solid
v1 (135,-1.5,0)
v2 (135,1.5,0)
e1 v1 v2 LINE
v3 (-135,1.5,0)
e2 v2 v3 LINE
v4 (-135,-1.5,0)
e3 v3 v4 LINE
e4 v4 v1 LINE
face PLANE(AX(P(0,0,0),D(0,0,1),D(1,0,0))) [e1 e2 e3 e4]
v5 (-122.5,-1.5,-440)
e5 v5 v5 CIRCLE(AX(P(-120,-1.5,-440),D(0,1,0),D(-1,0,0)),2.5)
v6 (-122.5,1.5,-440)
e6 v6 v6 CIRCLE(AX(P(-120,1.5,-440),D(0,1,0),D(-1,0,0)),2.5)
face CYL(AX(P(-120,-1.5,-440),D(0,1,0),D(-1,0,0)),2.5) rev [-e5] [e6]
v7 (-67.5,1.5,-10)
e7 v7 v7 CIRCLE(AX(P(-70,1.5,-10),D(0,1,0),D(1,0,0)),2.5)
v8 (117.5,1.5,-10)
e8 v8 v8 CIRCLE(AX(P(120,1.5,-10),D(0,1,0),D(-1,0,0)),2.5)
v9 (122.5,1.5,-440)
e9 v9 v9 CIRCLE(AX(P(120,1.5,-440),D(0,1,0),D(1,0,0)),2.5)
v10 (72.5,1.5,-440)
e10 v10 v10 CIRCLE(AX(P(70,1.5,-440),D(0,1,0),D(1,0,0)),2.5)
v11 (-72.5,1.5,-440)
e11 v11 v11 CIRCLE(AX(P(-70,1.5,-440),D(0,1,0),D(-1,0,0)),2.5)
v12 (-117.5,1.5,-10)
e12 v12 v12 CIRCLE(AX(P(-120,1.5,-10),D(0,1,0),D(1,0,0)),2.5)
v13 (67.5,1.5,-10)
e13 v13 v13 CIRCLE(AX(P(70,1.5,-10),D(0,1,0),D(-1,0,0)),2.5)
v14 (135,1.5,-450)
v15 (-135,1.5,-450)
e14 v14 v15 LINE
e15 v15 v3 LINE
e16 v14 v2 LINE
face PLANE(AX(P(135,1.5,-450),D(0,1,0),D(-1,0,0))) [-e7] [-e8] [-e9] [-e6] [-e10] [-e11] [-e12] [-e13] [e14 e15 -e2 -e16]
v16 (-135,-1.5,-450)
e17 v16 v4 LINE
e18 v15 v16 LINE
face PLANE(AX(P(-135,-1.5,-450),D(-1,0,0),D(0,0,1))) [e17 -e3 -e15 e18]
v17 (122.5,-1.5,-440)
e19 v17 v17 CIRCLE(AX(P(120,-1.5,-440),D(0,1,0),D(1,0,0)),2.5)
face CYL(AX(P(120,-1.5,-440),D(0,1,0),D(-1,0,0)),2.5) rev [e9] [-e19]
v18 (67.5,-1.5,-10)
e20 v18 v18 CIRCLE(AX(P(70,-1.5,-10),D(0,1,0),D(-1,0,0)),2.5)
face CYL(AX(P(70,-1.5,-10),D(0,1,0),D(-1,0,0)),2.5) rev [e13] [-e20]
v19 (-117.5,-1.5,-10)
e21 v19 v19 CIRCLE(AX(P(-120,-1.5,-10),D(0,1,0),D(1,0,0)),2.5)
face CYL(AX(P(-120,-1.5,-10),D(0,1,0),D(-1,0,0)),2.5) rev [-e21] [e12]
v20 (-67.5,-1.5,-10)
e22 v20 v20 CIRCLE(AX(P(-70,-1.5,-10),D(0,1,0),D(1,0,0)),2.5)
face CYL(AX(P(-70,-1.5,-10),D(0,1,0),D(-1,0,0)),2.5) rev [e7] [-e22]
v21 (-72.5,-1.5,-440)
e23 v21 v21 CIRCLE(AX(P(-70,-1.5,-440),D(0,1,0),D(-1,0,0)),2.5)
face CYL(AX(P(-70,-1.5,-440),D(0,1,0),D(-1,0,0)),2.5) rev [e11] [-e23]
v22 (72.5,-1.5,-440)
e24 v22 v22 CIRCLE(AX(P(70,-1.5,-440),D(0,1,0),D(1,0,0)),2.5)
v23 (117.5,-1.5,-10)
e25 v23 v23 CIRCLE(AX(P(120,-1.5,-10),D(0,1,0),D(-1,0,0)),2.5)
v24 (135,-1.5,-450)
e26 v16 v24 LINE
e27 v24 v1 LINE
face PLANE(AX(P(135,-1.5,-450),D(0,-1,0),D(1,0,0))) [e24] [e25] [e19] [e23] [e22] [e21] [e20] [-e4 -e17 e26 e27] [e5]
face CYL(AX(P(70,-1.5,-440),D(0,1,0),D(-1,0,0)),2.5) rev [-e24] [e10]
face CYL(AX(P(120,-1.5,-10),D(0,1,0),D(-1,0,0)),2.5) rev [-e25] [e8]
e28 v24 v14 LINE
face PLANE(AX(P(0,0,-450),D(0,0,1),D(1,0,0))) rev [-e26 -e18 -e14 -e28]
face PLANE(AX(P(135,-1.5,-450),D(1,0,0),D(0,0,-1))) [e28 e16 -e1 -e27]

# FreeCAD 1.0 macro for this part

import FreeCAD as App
import Part
import Sketcher
from FreeCAD import Vector
Q = App.Units.Quantity


def add_polygon(sketch, points):
    """Adds a closed chain of lines whose ends are joined by coincident constraints."""
    first, n = sketch.GeometryCount, len(points)
    for a, b in zip(points, points[1:] + points[:1]):
        sketch.addGeometry(Part.LineSegment(App.Vector(*a, 0), App.Vector(*b, 0)), False)
    for i in range(n):
        sketch.addConstraint(Sketcher.Constraint("Coincident", first + i, 2, first + (i + 1) % n, 1))

doc = App.newDocument("Part")
params = doc.addObject("Spreadsheet::Sheet", "Params")
for row, (alias, value) in enumerate([
    ("sketch1_width", "270 mm"),
    ("sketch1_height", "3 mm"),
    ("pad1_length", "450 mm"),
    ("sketch2_diameter", "5 mm"),
], start=1):
    params.set(f"A{row}", alias)
    params.set(f"B{row}", "=" + value)
    params.setAlias(f"B{row}", alias)

body = doc.addObject("PartDesign::Body", "Body")

sketch1 = doc.addObject("Sketcher::SketchObject", "Sketch")
body.addObject(sketch1)
sketch1.AttachmentSupport = (doc.XY_Plane, [""])
sketch1.MapMode = "FlatFace"
add_polygon(sketch1, [(-135, 1.5), (-135, -1.5), (135, -1.5), (135, 1.5)])
sketch1.addConstraint(Sketcher.Constraint("Vertical", 0))
sketch1.addConstraint(Sketcher.Constraint("Horizontal", 1))
sketch1.addConstraint(Sketcher.Constraint("Vertical", 2))
sketch1.addConstraint(Sketcher.Constraint("Horizontal", 3))
sketch1.addConstraint(Sketcher.Constraint("Symmetric", 0, 2, 2, 2, -1, 1))
sketch1.addConstraint(Sketcher.Constraint("DistanceX", 1, 1, 1, 2, Q("270 mm")))
sketch1.addConstraint(Sketcher.Constraint("DistanceY", 0, 2, 0, 1, Q("3 mm")))
sketch1.setExpression("Constraints[9]", "Params.sketch1_width")
sketch1.setExpression("Constraints[10]", "Params.sketch1_height")
pad1 = doc.addObject("PartDesign::Pad", "Pad")
body.addObject(pad1)
pad1.Profile = sketch1
pad1.setExpression("Length", "Params.pad1_length")
pad1.Reversed = True

sketch2 = doc.addObject("Sketcher::SketchObject", "Sketch001")
body.addObject(sketch2)
sketch2.AttachmentSupport = (doc.XZ_Plane, [""])
sketch2.MapMode = "FlatFace"
sketch2.AttachmentOffset = App.Placement(Vector(0, 0, -1.5), App.Rotation())
sketch2.addGeometry(Part.Circle(Vector(-120, -440, 0), Vector(0, 0, 1), 2.5), False)
sketch2.addGeometry(Part.Circle(Vector(-70, -440, 0), Vector(0, 0, 1), 2.5), False)
sketch2.addGeometry(Part.Circle(Vector(70, -440, 0), Vector(0, 0, 1), 2.5), False)
sketch2.addGeometry(Part.Circle(Vector(120, -440, 0), Vector(0, 0, 1), 2.5), False)
sketch2.addGeometry(Part.Circle(Vector(120, -10, 0), Vector(0, 0, 1), 2.5), False)
sketch2.addGeometry(Part.Circle(Vector(70, -10, 0), Vector(0, 0, 1), 2.5), False)
sketch2.addGeometry(Part.Circle(Vector(-70, -10, 0), Vector(0, 0, 1), 2.5), False)
sketch2.addGeometry(Part.Circle(Vector(-120, -10, 0), Vector(0, 0, 1), 2.5), False)
sketch2.addConstraint(Sketcher.Constraint("Equal", 0, 1))
sketch2.addConstraint(Sketcher.Constraint("Equal", 1, 2))
sketch2.addConstraint(Sketcher.Constraint("Equal", 2, 3))
sketch2.addConstraint(Sketcher.Constraint("Equal", 3, 4))
sketch2.addConstraint(Sketcher.Constraint("Equal", 4, 5))
sketch2.addConstraint(Sketcher.Constraint("Equal", 5, 6))
sketch2.addConstraint(Sketcher.Constraint("Equal", 6, 7))
sketch2.addConstraint(Sketcher.Constraint("Symmetric", 1, 3, 2, 3, -2))
sketch2.addConstraint(Sketcher.Constraint("Symmetric", 0, 3, 3, 3, -2))
sketch2.addConstraint(Sketcher.Constraint("Symmetric", 5, 3, 6, 3, -2))
sketch2.addConstraint(Sketcher.Constraint("Symmetric", 4, 3, 7, 3, -2))
sketch2.addConstraint(Sketcher.Constraint("Horizontal", 0, 3, 1, 3))
sketch2.addConstraint(Sketcher.Constraint("Horizontal", 4, 3, 5, 3))
sketch2.addConstraint(Sketcher.Constraint("Vertical", 3, 3, 4, 3))
sketch2.addConstraint(Sketcher.Constraint("Vertical", 2, 3, 5, 3))
sketch2.addConstraint(Sketcher.Constraint("Diameter", 0, Q("5 mm")))
sketch2.addConstraint(Sketcher.Constraint("DistanceX", 0, 3, -1, 1, Q("120 mm")))
sketch2.addConstraint(Sketcher.Constraint("DistanceY", 0, 3, -1, 1, Q("440 mm")))
sketch2.addConstraint(Sketcher.Constraint("DistanceX", 1, 3, -1, 1, Q("70 mm")))
sketch2.addConstraint(Sketcher.Constraint("DistanceY", 4, 3, -1, 1, Q("10 mm")))
sketch2.setExpression("Constraints[15]", "Params.sketch2_diameter")
pocket1 = doc.addObject("PartDesign::Pocket", "Pocket")
body.addObject(pocket1)
pocket1.Profile = sketch2
pocket1.Type = "ThroughAll"
pocket1.Reversed = True

doc.recompute()
